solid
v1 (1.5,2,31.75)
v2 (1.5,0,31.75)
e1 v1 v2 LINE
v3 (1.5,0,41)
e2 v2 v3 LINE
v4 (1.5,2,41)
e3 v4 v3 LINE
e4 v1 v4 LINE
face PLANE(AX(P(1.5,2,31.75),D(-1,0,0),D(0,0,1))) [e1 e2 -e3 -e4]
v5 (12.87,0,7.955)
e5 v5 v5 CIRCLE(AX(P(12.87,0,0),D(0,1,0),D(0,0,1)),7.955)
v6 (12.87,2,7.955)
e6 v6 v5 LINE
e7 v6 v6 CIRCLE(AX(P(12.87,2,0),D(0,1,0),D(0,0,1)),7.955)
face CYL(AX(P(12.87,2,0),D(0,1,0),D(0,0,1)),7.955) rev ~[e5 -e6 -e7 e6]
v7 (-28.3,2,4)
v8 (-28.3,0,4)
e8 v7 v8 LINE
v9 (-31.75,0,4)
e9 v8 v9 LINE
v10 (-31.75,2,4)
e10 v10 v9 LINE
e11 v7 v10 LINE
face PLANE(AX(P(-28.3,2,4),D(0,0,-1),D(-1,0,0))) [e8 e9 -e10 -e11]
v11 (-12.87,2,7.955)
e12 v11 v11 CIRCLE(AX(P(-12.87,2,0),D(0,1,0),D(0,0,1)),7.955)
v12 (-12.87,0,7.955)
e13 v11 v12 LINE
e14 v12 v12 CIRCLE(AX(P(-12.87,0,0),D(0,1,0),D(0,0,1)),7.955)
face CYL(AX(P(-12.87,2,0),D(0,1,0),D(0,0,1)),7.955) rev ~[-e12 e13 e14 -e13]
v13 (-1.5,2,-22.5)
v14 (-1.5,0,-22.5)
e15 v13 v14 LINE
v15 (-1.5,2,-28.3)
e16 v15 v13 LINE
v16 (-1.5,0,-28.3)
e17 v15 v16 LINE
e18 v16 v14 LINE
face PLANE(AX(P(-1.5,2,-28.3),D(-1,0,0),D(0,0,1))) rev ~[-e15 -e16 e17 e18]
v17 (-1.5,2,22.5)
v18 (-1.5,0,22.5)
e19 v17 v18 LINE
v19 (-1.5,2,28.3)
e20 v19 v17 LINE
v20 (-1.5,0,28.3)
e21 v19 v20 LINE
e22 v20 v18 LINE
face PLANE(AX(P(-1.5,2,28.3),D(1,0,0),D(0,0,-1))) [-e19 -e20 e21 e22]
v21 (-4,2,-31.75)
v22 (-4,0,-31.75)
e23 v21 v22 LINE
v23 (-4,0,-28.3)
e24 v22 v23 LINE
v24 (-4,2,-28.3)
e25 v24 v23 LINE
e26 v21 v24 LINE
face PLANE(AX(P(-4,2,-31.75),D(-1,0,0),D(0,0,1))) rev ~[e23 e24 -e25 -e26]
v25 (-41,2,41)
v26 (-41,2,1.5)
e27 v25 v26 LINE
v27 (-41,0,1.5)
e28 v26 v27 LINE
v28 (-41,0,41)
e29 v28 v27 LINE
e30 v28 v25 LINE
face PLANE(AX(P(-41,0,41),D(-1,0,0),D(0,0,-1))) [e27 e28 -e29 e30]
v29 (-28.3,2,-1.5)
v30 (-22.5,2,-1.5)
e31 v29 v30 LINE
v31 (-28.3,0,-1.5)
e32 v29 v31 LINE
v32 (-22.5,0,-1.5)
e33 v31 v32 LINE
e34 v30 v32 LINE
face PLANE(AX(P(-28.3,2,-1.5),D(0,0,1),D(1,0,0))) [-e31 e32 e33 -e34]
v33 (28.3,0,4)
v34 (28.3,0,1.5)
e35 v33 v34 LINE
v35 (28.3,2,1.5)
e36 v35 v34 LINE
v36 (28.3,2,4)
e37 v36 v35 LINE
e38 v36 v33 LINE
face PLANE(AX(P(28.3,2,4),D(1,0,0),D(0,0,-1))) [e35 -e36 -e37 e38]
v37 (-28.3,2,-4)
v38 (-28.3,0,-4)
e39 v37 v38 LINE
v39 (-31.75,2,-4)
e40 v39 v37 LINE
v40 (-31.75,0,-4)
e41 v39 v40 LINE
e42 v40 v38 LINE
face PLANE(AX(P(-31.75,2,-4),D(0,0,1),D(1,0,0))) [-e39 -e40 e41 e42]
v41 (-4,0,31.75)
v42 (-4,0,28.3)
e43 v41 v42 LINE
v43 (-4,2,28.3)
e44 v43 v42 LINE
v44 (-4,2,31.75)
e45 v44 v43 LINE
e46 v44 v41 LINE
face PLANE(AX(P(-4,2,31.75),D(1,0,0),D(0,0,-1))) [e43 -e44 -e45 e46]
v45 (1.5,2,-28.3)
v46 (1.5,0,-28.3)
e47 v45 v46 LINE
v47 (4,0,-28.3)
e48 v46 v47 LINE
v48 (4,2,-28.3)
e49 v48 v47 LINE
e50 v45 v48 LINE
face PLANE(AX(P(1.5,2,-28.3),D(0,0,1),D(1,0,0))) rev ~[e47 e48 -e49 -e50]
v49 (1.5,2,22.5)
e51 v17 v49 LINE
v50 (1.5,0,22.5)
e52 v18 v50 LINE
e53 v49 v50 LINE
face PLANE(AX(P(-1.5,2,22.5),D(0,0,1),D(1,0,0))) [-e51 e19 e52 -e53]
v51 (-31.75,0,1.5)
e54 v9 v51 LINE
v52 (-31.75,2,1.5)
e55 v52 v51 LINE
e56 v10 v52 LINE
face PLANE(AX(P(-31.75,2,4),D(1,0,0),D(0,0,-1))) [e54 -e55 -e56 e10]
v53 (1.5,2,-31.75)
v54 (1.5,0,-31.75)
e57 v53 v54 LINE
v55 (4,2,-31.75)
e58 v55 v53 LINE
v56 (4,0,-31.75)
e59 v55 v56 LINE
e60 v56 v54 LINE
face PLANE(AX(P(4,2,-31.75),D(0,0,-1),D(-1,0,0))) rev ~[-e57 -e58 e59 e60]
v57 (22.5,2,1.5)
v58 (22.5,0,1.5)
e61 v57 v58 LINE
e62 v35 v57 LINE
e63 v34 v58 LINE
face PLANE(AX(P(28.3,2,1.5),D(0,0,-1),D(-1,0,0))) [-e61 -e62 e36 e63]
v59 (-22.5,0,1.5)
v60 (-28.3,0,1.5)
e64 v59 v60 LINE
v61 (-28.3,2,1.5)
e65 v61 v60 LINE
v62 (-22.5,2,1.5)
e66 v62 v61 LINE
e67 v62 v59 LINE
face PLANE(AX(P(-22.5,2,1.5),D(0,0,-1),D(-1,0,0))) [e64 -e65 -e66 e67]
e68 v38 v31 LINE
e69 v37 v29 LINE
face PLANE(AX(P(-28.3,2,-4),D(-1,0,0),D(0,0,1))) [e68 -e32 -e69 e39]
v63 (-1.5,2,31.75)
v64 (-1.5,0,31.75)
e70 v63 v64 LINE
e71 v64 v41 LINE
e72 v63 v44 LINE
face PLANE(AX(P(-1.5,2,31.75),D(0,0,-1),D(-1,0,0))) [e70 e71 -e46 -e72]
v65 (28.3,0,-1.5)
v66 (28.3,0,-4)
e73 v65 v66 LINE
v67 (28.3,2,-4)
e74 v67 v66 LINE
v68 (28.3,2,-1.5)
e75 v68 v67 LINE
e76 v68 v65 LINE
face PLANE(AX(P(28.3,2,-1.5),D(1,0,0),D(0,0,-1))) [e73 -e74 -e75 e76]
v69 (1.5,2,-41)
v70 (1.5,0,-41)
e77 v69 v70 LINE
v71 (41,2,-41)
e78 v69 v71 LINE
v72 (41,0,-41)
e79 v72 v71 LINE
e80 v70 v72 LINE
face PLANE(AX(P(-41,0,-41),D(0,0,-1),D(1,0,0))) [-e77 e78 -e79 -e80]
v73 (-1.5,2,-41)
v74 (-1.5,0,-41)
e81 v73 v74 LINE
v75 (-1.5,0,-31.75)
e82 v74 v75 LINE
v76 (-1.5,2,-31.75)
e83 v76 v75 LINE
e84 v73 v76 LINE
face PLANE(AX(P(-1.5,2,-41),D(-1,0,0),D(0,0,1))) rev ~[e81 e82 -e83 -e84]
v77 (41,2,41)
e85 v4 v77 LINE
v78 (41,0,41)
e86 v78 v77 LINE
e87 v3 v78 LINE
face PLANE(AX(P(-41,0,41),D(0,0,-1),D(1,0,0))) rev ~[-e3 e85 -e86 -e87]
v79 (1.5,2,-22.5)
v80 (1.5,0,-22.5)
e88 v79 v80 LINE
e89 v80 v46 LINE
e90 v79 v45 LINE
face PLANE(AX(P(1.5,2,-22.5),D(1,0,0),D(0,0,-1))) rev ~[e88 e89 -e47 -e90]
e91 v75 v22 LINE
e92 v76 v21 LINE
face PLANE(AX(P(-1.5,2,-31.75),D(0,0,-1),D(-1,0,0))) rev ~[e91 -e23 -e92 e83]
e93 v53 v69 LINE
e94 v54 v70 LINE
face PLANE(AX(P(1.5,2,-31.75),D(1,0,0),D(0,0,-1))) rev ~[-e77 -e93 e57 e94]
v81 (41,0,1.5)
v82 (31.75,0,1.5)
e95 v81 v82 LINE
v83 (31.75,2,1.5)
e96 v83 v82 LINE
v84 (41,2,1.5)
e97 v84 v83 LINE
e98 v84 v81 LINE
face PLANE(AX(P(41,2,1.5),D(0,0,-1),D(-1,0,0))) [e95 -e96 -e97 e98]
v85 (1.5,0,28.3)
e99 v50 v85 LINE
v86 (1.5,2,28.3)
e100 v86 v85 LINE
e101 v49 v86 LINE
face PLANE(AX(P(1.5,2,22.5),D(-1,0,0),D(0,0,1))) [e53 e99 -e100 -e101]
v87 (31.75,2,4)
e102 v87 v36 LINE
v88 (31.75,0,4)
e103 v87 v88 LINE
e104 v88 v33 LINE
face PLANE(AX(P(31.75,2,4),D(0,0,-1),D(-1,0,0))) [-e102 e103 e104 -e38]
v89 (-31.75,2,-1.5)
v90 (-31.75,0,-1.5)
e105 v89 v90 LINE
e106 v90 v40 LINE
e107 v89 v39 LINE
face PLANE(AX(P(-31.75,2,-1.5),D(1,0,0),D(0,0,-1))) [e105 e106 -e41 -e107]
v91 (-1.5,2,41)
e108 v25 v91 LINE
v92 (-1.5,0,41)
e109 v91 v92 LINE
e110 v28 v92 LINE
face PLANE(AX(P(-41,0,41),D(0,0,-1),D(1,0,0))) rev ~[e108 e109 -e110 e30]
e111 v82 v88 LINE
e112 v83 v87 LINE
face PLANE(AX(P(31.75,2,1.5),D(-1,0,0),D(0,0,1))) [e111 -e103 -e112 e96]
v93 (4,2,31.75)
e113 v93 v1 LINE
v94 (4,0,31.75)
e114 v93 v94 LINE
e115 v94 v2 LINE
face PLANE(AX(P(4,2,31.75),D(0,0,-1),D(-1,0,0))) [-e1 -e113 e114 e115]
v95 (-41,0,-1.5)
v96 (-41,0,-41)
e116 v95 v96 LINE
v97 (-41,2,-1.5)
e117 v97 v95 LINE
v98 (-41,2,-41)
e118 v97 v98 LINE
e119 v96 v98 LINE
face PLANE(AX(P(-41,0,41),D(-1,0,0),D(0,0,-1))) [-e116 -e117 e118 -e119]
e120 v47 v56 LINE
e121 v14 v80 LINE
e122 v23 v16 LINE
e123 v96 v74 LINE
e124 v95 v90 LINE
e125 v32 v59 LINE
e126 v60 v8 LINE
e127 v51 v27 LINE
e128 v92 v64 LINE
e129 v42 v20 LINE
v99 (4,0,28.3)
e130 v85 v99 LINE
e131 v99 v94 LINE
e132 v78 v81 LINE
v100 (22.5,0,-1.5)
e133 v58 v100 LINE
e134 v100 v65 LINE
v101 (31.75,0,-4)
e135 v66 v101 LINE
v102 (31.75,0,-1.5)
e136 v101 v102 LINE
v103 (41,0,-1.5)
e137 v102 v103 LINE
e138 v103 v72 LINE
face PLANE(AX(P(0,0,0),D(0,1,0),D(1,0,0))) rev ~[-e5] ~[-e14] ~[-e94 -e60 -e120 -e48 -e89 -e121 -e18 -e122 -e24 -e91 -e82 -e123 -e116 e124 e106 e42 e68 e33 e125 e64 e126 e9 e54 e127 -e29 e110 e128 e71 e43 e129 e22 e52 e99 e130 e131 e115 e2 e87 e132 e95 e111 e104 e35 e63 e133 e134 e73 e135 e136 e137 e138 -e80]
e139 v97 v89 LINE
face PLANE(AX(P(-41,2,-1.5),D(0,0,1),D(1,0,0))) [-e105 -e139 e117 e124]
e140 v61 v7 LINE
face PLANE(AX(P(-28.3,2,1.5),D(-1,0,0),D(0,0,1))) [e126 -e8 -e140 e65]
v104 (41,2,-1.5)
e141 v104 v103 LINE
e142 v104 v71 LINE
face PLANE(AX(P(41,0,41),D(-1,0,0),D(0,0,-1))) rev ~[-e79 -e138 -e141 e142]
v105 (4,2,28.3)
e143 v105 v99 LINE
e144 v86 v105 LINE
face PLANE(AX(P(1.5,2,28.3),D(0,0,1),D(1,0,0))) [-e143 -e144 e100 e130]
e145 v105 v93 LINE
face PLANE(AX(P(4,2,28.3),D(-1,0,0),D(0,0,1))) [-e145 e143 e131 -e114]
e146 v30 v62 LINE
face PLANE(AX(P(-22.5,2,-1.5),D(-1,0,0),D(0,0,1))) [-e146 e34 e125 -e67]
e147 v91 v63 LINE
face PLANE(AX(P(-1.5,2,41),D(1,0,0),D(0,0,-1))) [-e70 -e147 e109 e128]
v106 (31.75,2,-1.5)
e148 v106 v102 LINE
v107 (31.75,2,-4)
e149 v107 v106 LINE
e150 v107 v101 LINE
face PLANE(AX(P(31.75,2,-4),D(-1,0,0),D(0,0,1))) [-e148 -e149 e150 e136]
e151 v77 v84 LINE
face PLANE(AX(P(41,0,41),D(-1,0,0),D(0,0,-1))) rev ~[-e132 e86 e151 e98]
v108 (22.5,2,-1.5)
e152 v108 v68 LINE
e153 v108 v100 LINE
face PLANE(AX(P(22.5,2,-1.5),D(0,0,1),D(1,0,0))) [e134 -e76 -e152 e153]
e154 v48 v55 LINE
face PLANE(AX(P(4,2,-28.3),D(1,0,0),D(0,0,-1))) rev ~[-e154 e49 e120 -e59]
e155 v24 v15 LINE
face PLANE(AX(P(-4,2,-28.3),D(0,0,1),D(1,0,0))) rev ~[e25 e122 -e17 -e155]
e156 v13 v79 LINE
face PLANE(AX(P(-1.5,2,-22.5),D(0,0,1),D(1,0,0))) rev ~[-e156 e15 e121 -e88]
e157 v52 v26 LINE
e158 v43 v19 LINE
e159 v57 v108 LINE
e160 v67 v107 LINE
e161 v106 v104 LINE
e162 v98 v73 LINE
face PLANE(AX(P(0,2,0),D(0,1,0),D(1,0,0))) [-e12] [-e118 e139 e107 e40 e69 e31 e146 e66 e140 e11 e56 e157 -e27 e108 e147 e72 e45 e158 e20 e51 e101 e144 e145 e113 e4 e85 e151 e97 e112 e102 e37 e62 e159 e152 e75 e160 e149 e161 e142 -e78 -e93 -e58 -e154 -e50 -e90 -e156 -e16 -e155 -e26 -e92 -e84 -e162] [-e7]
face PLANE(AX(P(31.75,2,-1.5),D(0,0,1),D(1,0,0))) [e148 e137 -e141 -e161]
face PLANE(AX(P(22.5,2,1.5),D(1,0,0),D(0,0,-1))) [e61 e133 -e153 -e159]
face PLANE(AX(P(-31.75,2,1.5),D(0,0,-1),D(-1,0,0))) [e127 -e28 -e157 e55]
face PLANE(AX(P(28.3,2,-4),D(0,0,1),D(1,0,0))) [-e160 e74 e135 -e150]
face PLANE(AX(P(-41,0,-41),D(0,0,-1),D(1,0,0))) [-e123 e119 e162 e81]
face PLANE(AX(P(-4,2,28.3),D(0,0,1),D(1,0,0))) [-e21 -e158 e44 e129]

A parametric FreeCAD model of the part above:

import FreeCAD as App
import Part
import Sketcher

V = App.Vector

doc = App.newDocument("Part")
body = doc.addObject("PartDesign::Body", "Body")

sketch1 = body.newObject("Sketcher::SketchObject", "Sketch")
sketch1.AttachmentSupport = (doc.getObject("XZ_Plane"), [""])
sketch1.MapMode = "FlatFace"
sketch1.addGeometry([
    Part.LineSegment(V(-41, -41, 0), V(-41, 41, 0)),
    Part.LineSegment(V(-41, 41, 0), V(41, 41, 0)),
    Part.LineSegment(V(41, 41, 0), V(41, -41, 0)),
    Part.LineSegment(V(41, -41, 0), V(-41, -41, 0)),
], False)
sketch1.addConstraint([
    Sketcher.Constraint("Coincident", 0, 2, 1, 1),
    Sketcher.Constraint("Coincident", 1, 2, 2, 1),
    Sketcher.Constraint("Coincident", 2, 2, 3, 1),
    Sketcher.Constraint("Coincident", 3, 2, 0, 1),
    Sketcher.Constraint("Vertical", 0),
    Sketcher.Constraint("Horizontal", 1),
    Sketcher.Constraint("Vertical", 2),
    Sketcher.Constraint("Horizontal", 3),
    Sketcher.Constraint("Symmetric", 0, 2, 2, 2, -1, 1),
    Sketcher.Constraint("Equal", 3, 0),
    Sketcher.Constraint("DistanceX", 1, 1, 1, 2, 82.0),
])
pad1 = body.newObject("PartDesign::Pad", "Pad")
pad1.Profile = sketch1
pad1.Length = 2
pad1.Reversed = True

sketch2 = body.newObject("Sketcher::SketchObject", "Sketch001")
sketch2.AttachmentSupport = (doc.getObject("XZ_Plane"), [""])
sketch2.MapMode = "FlatFace"
sketch2.AttachmentOffset = App.Placement(V(0, 0, -2), App.Rotation())
sketch2.addGeometry([
    Part.Circle(V(-12.87, 0, 0), V(0, 0, 1), 7.955),
    Part.Circle(V(12.87, 0, 0), V(0, 0, 1), 7.955),
], False)
sketch2.addConstraint([
    Sketcher.Constraint("Equal", 0, 1),
    Sketcher.Constraint("Symmetric", 0, 3, 1, 3, -1, 1),
    Sketcher.Constraint("PointOnObject", 0, 3, -1),
    Sketcher.Constraint("Diameter", 0, 15.91),
    Sketcher.Constraint("DistanceX", 0, 3, -1, 1, 12.87),
])
pocket1 = body.newObject("PartDesign::Pocket", "Pocket")
pocket1.Profile = sketch2
pocket1.Length = 10
pocket1.Reversed = True

sketch3 = body.newObject("Sketcher::SketchObject", "Sketch002")
sketch3.AttachmentSupport = (doc.getObject("XZ_Plane"), [""])
sketch3.MapMode = "FlatFace"
sketch3.AttachmentOffset = App.Placement(V(0, 0, -2), App.Rotation())
sketch3.addGeometry([
    Part.LineSegment(V(-1.5, -22.5, 0), V(1.5, -22.5, 0)),
    Part.LineSegment(V(1.5, -22.5, 0), V(1.5, -28.3, 0)),
    Part.LineSegment(V(1.5, -28.3, 0), V(4, -28.3, 0)),
    Part.LineSegment(V(4, -28.3, 0), V(4, -31.75, 0)),
    Part.LineSegment(V(4, -31.75, 0), V(1.5, -31.75, 0)),
    Part.LineSegment(V(1.5, -31.75, 0), V(1.5, -41, 0)),
    Part.LineSegment(V(1.5, -41, 0), V(-1.5, -41, 0)),
    Part.LineSegment(V(-1.5, -41, 0), V(-1.5, -31.75, 0)),
    Part.LineSegment(V(-1.5, -31.75, 0), V(-4, -31.75, 0)),
    Part.LineSegment(V(-4, -31.75, 0), V(-4, -28.3, 0)),
    Part.LineSegment(V(-4, -28.3, 0), V(-1.5, -28.3, 0)),
    Part.LineSegment(V(-1.5, -28.3, 0), V(-1.5, -22.5, 0)),
    Part.LineSegment(V(28.3, -4, 0), V(28.3, -1.5, 0)),
    Part.LineSegment(V(28.3, -1.5, 0), V(22.5, -1.5, 0)),
    Part.LineSegment(V(22.5, -1.5, 0), V(22.5, 1.5, 0)),
    Part.LineSegment(V(22.5, 1.5, 0), V(28.3, 1.5, 0)),
    Part.LineSegment(V(28.3, 1.5, 0), V(28.3, 4, 0)),
    Part.LineSegment(V(28.3, 4, 0), V(31.75, 4, 0)),
    Part.LineSegment(V(31.75, 4, 0), V(31.75, 1.5, 0)),
    Part.LineSegment(V(31.75, 1.5, 0), V(41, 1.5, 0)),
    Part.LineSegment(V(41, 1.5, 0), V(41, -1.5, 0)),
    Part.LineSegment(V(41, -1.5, 0), V(31.75, -1.5, 0)),
    Part.LineSegment(V(31.75, -1.5, 0), V(31.75, -4, 0)),
    Part.LineSegment(V(31.75, -4, 0), V(28.3, -4, 0)),
    Part.LineSegment(V(4, 28.3, 0), V(1.5, 28.3, 0)),
    Part.LineSegment(V(1.5, 28.3, 0), V(1.5, 22.5, 0)),
    Part.LineSegment(V(1.5, 22.5, 0), V(-1.5, 22.5, 0)),
    Part.LineSegment(V(-1.5, 22.5, 0), V(-1.5, 28.3, 0)),
    Part.LineSegment(V(-1.5, 28.3, 0), V(-4, 28.3, 0)),
    Part.LineSegment(V(-4, 28.3, 0), V(-4, 31.75, 0)),
    Part.LineSegment(V(-4, 31.75, 0), V(-1.5, 31.75, 0)),
    Part.LineSegment(V(-1.5, 31.75, 0), V(-1.5, 41, 0)),
    Part.LineSegment(V(-1.5, 41, 0), V(1.5, 41, 0)),
    Part.LineSegment(V(1.5, 41, 0), V(1.5, 31.75, 0)),
    Part.LineSegment(V(1.5, 31.75, 0), V(4, 31.75, 0)),
    Part.LineSegment(V(4, 31.75, 0), V(4, 28.3, 0)),
    Part.LineSegment(V(-28.3, 4, 0), V(-28.3, 1.5, 0)),
    Part.LineSegment(V(-28.3, 1.5, 0), V(-22.5, 1.5, 0)),
    Part.LineSegment(V(-22.5, 1.5, 0), V(-22.5, -1.5, 0)),
    Part.LineSegment(V(-22.5, -1.5, 0), V(-28.3, -1.5, 0)),
    Part.LineSegment(V(-28.3, -1.5, 0), V(-28.3, -4, 0)),
    Part.LineSegment(V(-28.3, -4, 0), V(-31.75, -4, 0)),
    Part.LineSegment(V(-31.75, -4, 0), V(-31.75, -1.5, 0)),
    Part.LineSegment(V(-31.75, -1.5, 0), V(-41, -1.5, 0)),
    Part.LineSegment(V(-41, -1.5, 0), V(-41, 1.5, 0)),
    Part.LineSegment(V(-41, 1.5, 0), V(-31.75, 1.5, 0)),
    Part.LineSegment(V(-31.75, 1.5, 0), V(-31.75, 4, 0)),
    Part.LineSegment(V(-31.75, 4, 0), V(-28.3, 4, 0)),
], False)
sketch3.addConstraint([
    Sketcher.Constraint("Coincident", 0, 2, 1, 1),
    Sketcher.Constraint("Coincident", 1, 2, 2, 1),
    Sketcher.Constraint("Coincident", 2, 2, 3, 1),
    Sketcher.Constraint("Coincident", 3, 2, 4, 1),
    Sketcher.Constraint("Coincident", 4, 2, 5, 1),
    Sketcher.Constraint("Coincident", 5, 2, 6, 1),
    Sketcher.Constraint("Coincident", 6, 2, 7, 1),
    Sketcher.Constraint("Coincident", 7, 2, 8, 1),
    Sketcher.Constraint("Coincident", 8, 2, 9, 1),
    Sketcher.Constraint("Coincident", 9, 2, 10, 1),
    Sketcher.Constraint("Coincident", 10, 2, 11, 1),
    Sketcher.Constraint("Coincident", 11, 2, 0, 1),
    Sketcher.Constraint("Coincident", 12, 2, 13, 1),
    Sketcher.Constraint("Coincident", 13, 2, 14, 1),
    Sketcher.Constraint("Coincident", 14, 2, 15, 1),
    Sketcher.Constraint("Coincident", 15, 2, 16, 1),
    Sketcher.Constraint("Coincident", 16, 2, 17, 1),
    Sketcher.Constraint("Coincident", 17, 2, 18, 1),
    Sketcher.Constraint("Coincident", 18, 2, 19, 1),
    Sketcher.Constraint("Coincident", 19, 2, 20, 1),
    Sketcher.Constraint("Coincident", 20, 2, 21, 1),
    Sketcher.Constraint("Coincident", 21, 2, 22, 1),
    Sketcher.Constraint("Coincident", 22, 2, 23, 1),
    Sketcher.Constraint("Coincident", 23, 2, 12, 1),
    Sketcher.Constraint("Coincident", 24, 2, 25, 1),
    Sketcher.Constraint("Coincident", 25, 2, 26, 1),
    Sketcher.Constraint("Coincident", 26, 2, 27, 1),
    Sketcher.Constraint("Coincident", 27, 2, 28, 1),
    Sketcher.Constraint("Coincident", 28, 2, 29, 1),
    Sketcher.Constraint("Coincident", 29, 2, 30, 1),
    Sketcher.Constraint("Coincident", 30, 2, 31, 1),
    Sketcher.Constraint("Coincident", 31, 2, 32, 1),
    Sketcher.Constraint("Coincident", 32, 2, 33, 1),
    Sketcher.Constraint("Coincident", 33, 2, 34, 1),
    Sketcher.Constraint("Coincident", 34, 2, 35, 1),
    Sketcher.Constraint("Coincident", 35, 2, 24, 1),
    Sketcher.Constraint("Coincident", 36, 2, 37, 1),
    Sketcher.Constraint("Coincident", 37, 2, 38, 1),
    Sketcher.Constraint("Coincident", 38, 2, 39, 1),
    Sketcher.Constraint("Coincident", 39, 2, 40, 1),
    Sketcher.Constraint("Coincident", 40, 2, 41, 1),
    Sketcher.Constraint("Coincident", 41, 2, 42, 1),
    Sketcher.Constraint("Coincident", 42, 2, 43, 1),
    Sketcher.Constraint("Coincident", 43, 2, 44, 1),
    Sketcher.Constraint("Coincident", 44, 2, 45, 1),
    Sketcher.Constraint("Coincident", 45, 2, 46, 1),
    Sketcher.Constraint("Coincident", 46, 2, 47, 1),
    Sketcher.Constraint("Coincident", 47, 2, 36, 1),
    Sketcher.Constraint("Horizontal", 0),
    Sketcher.Constraint("Vertical", 1),
    Sketcher.Constraint("Horizontal", 2),
    Sketcher.Constraint("Vertical", 3),
    Sketcher.Constraint("Horizontal", 4),
    Sketcher.Constraint("Vertical", 5),
    Sketcher.Constraint("Horizontal", 6),
    Sketcher.Constraint("Vertical", 7),
    Sketcher.Constraint("Horizontal", 8),
    Sketcher.Constraint("Vertical", 9),
    Sketcher.Constraint("Horizontal", 10),
    Sketcher.Constraint("Vertical", 11),
    Sketcher.Constraint("Vertical", 12),
    Sketcher.Constraint("Horizontal", 13),
    Sketcher.Constraint("Vertical", 14),
    Sketcher.Constraint("Horizontal", 15),
    Sketcher.Constraint("Vertical", 16),
    Sketcher.Constraint("Horizontal", 17),
    Sketcher.Constraint("Vertical", 18),
    Sketcher.Constraint("Horizontal", 19),
    Sketcher.Constraint("Vertical", 20),
    Sketcher.Constraint("Horizontal", 21),
    Sketcher.Constraint("Vertical", 22),
    Sketcher.Constraint("Horizontal", 23),
    Sketcher.Constraint("Horizontal", 24),
    Sketcher.Constraint("Vertical", 25),
    Sketcher.Constraint("Horizontal", 26),
    Sketcher.Constraint("Vertical", 27),
    Sketcher.Constraint("Horizontal", 28),
    Sketcher.Constraint("Vertical", 29),
    Sketcher.Constraint("Horizontal", 30),
    Sketcher.Constraint("Vertical", 31),
    Sketcher.Constraint("Horizontal", 32),
    Sketcher.Constraint("Vertical", 33),
    Sketcher.Constraint("Horizontal", 34),
    Sketcher.Constraint("Vertical", 35),
    Sketcher.Constraint("Vertical", 36),
    Sketcher.Constraint("Horizontal", 37),
    Sketcher.Constraint("Vertical", 38),
    Sketcher.Constraint("Horizontal", 39),
    Sketcher.Constraint("Vertical", 40),
    Sketcher.Constraint("Horizontal", 41),
    Sketcher.Constraint("Vertical", 42),
    Sketcher.Constraint("Horizontal", 43),
    Sketcher.Constraint("Vertical", 44),
    Sketcher.Constraint("Horizontal", 45),
    Sketcher.Constraint("Vertical", 46),
    Sketcher.Constraint("Horizontal", 47),
    Sketcher.Constraint("Symmetric", 10, 2, 24, 2, -1, 1),
    Sketcher.Constraint("Symmetric", 0, 2, 26, 2, -1, 1),
    Sketcher.Constraint("Symmetric", 2, 2, 28, 2, -1, 1),
    Sketcher.Constraint("Symmetric", 4, 2, 30, 2, -1, 1),
    Sketcher.Constraint("Symmetric", 6, 2, 32, 2, -1, 1),
    Sketcher.Constraint("Symmetric", 8, 2, 34, 2, -1, 1),
    Sketcher.Constraint("Symmetric", 12, 2, 36, 2, -1, 1),
    Sketcher.Constraint("Symmetric", 14, 2, 38, 2, -1, 1),
    Sketcher.Constraint("Symmetric", 16, 2, 40, 2, -1, 1),
    Sketcher.Constraint("Symmetric", 18, 2, 42, 2, -1, 1),
    Sketcher.Constraint("Symmetric", 20, 2, 44, 2, -1, 1),
    Sketcher.Constraint("Symmetric", 22, 2, 46, 2, -1, 1),
    Sketcher.Constraint("Symmetric", 4, 2, 7, 2, -2),
    Sketcher.Constraint("Symmetric", 2, 2, 9, 2, -2),
    Sketcher.Constraint("Symmetric", 15, 2, 36, 2, -2),
    Sketcher.Constraint("Symmetric", 22, 2, 41, 2, -2),
    Sketcher.Constraint("Horizontal", 15, 2, 18, 2),
    Sketcher.Constraint("Horizontal", 13, 2, 20, 2),
    Sketcher.Constraint("Vertical", 1, 2, 4, 2),
    Sketcher.Constraint("Vertical", 7, 2, 10, 2),
    Sketcher.Constraint("Equal", 39, 1),
    Sketcher.Constraint("Equal", 47, 3),
    Sketcher.Constraint("Equal", 45, 5),
    Sketcher.Constraint("Equal", 34, 12),
    Sketcher.Constraint("Equal", 32, 14),
    Sketcher.Constraint("DistanceX", 0, 1, 0, 2, 3.0),
    Sketcher.Constraint("DistanceX", 2, 1, 2, 2, 2.5),
    Sketcher.Constraint("DistanceX", 13, 2, 13, 1, 5.8),
    Sketcher.Constraint("DistanceY", 5, 2, -1, 1, 41.0),
    Sketcher.Constraint("DistanceX", -1, 1, 19, 2, 41.0),
    Sketcher.Constraint("DistanceY", 0, 2, 12, 2, 21.0),
    Sketcher.Constraint("DistanceX", 17, 1, 17, 2, 3.45),
])
pocket2 = body.newObject("PartDesign::Pocket", "Pocket001")
pocket2.Profile = sketch3
pocket2.Length = 10
pocket2.Reversed = True

doc.recompute()
